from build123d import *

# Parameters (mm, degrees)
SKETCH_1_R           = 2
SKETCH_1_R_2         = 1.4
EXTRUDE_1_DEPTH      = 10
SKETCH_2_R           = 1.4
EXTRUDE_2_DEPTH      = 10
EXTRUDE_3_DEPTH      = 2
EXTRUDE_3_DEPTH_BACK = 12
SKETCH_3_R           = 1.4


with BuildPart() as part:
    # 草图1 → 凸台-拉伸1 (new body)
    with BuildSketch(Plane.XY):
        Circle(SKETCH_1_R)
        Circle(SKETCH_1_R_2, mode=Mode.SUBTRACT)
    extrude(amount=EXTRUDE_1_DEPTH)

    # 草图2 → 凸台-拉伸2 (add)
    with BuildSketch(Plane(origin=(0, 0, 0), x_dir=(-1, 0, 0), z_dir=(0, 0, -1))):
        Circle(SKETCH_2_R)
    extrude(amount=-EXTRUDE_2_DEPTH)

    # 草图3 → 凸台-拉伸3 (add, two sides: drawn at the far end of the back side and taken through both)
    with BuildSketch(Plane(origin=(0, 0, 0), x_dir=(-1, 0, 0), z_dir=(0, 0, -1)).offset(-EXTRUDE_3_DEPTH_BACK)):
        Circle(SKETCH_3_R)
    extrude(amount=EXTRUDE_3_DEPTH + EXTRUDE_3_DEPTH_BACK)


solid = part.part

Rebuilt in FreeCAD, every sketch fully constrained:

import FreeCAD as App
import Part
import Sketcher
from FreeCAD import Vector

doc = App.newDocument("Part")
body = doc.addObject("PartDesign::Body", "Body")

# Sketch on XY plane
sketch1 = doc.addObject("Sketcher::SketchObject", "Sketch")
body.addObject(sketch1)
sketch1.AttachmentSupport = (doc.XY_Plane, [""])
sketch1.MapMode = "FlatFace"
sketch1.addGeometry([
    Part.Circle(Vector(0, 0, 0), Vector(0, 0, 1), 2),
    Part.Circle(Vector(0, 0, 0), Vector(0, 0, 1), 1.4),
], False)
sketch1.addConstraint([
    Sketcher.Constraint("Coincident", 0, 3, -1, 1),
    Sketcher.Constraint("Coincident", 1, 3, -1, 1),
    Sketcher.Constraint("Diameter", 0, 4.0),
    Sketcher.Constraint("Diameter", 1, 2.8),
])
pad1 = doc.addObject("PartDesign::Pad", "Pad")
body.addObject(pad1)
pad1.Profile = sketch1
pad1.Length = 10

# Sketch on XY plane
sketch2 = doc.addObject("Sketcher::SketchObject", "Sketch001")
body.addObject(sketch2)
sketch2.AttachmentSupport = (doc.XY_Plane, [""])
sketch2.MapMode = "FlatFace"
sketch2.addGeometry(Part.Circle(Vector(0, 0, 0), Vector(0, 0, 1), 1.4), False)
sketch2.addConstraint([
    Sketcher.Constraint("Coincident", 0, 3, -1, 1),
    Sketcher.Constraint("Diameter", 0, 2.8),
])
pad2 = doc.addObject("PartDesign::Pad", "Pad001")
body.addObject(pad2)
pad2.Profile = sketch2
pad2.Length = 10

# Sketch on XY plane
sketch3 = doc.addObject("Sketcher::SketchObject", "Sketch002")
body.addObject(sketch3)
sketch3.AttachmentSupport = (doc.XY_Plane, [""])
sketch3.MapMode = "FlatFace"
sketch3.addGeometry(Part.Circle(Vector(0, 0, 0), Vector(0, 0, 1), 1.4), False)
sketch3.addConstraint([
    Sketcher.Constraint("Coincident", 0, 3, -1, 1),
    Sketcher.Constraint("Diameter", 0, 2.8),
])
pad3 = doc.addObject("PartDesign::Pad", "Pad002")
body.addObject(pad3)
pad3.Profile = sketch3
pad3.Type = "TwoLengths"
pad3.Length = 2
pad3.Length2 = 12
pad3.Reversed = True

doc.recompute()
